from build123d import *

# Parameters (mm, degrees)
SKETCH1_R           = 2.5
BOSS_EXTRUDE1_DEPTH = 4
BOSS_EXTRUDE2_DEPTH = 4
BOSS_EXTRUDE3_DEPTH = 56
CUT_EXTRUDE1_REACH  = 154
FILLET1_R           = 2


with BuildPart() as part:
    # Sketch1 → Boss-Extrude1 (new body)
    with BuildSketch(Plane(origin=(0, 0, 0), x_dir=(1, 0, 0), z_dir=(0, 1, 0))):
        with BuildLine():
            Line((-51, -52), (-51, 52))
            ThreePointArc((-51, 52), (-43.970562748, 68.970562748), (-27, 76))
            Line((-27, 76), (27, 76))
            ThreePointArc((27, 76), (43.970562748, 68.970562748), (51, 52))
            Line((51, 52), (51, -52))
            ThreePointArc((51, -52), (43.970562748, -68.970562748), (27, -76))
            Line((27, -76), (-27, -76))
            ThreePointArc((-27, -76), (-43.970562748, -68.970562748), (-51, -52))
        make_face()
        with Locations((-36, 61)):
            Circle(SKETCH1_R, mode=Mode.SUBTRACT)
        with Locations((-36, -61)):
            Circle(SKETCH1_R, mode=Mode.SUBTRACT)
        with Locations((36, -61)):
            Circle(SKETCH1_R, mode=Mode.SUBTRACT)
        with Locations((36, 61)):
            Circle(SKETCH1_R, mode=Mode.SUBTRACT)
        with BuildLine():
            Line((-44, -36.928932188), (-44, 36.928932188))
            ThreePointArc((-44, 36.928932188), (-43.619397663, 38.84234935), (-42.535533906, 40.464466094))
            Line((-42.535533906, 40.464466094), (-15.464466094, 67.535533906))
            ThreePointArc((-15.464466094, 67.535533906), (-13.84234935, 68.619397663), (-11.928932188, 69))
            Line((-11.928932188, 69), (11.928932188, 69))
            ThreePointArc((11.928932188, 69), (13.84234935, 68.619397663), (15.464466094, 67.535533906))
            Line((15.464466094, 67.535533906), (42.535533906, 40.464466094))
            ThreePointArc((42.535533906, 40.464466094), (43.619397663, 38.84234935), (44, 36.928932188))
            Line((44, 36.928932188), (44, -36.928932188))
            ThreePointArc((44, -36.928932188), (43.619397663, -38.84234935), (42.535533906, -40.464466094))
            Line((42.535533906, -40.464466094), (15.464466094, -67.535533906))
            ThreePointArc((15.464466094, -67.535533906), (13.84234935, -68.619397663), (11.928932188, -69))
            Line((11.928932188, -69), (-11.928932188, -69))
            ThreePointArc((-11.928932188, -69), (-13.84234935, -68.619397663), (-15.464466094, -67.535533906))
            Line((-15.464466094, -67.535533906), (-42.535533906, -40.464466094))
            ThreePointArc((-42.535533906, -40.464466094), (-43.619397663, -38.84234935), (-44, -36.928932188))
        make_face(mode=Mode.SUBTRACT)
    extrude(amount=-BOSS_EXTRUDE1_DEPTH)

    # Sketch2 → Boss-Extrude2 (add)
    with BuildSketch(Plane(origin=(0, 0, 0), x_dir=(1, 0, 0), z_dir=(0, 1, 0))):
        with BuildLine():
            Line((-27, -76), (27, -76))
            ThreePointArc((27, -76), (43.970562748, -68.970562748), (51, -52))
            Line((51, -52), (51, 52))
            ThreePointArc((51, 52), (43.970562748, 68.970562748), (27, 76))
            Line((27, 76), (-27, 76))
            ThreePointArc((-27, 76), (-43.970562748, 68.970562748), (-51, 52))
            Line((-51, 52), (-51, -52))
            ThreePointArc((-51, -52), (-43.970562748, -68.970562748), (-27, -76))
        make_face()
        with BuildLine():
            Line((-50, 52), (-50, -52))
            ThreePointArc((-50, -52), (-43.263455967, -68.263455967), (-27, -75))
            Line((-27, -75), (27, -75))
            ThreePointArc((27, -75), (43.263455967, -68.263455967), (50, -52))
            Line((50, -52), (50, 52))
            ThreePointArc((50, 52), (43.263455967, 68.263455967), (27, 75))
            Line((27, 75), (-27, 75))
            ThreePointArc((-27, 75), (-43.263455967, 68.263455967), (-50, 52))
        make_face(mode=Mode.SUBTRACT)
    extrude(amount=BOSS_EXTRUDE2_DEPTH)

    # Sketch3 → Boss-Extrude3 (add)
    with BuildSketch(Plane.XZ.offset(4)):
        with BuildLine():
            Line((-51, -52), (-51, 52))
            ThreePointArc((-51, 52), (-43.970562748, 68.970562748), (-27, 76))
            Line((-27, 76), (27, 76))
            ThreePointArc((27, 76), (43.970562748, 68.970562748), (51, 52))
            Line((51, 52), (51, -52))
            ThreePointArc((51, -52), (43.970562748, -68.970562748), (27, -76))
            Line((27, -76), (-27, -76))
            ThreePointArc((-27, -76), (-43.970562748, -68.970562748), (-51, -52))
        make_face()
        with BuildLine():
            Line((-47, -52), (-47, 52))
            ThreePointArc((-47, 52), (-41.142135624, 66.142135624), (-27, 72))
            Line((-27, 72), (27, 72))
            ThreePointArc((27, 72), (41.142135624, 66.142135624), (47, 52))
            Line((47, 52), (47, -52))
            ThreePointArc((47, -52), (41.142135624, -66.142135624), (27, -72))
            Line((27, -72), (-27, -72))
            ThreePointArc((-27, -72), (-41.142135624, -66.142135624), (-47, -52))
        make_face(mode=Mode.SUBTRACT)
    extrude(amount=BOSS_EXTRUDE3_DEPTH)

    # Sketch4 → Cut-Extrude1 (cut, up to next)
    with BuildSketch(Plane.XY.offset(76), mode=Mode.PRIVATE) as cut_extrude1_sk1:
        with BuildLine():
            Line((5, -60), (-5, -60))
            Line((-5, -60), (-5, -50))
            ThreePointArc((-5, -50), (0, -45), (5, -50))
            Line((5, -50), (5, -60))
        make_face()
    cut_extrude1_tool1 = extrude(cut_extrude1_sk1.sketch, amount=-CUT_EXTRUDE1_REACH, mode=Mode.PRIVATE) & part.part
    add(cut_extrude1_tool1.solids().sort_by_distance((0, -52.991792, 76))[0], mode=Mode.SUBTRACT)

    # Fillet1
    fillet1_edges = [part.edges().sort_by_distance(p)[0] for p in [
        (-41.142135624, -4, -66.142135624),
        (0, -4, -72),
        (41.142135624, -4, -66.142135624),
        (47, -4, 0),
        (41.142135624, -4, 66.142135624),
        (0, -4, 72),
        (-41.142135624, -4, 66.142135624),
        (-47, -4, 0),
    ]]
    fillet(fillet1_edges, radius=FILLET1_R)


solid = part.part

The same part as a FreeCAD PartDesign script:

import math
import FreeCAD as App
import Part
import Sketcher
from FreeCAD import Vector
Q = App.Units.Quantity


def edges_at(feature, points):
    """Names of the edges that pass closest to the given points."""
    edges = feature.Shape.Edges
    near = lambda p: min(range(len(edges)), key=lambda i: edges[i].distToShape(Part.Vertex(*p))[0])
    return sorted({f"Edge{near(p) + 1}" for p in points})

doc = App.newDocument("Part")
body = doc.addObject("PartDesign::Body", "Body")

# Sketch on XZ plane
sketch1 = body.newObject("Sketcher::SketchObject", "Sketch")
sketch1.AttachmentSupport = (doc.getObject("XZ_Plane"), [""])
sketch1.MapMode = "FlatFace"
sketch1.addGeometry(Part.LineSegment(Vector(-51, -52, 0), Vector(-51, 52, 0)), False)
sketch1.addGeometry(Part.ArcOfCircle(Part.Circle(Vector(-27, 52, 0), Vector(0, 0, 1), 24), math.radians(90), math.radians(180)), False)
sketch1.addGeometry(Part.LineSegment(Vector(-27, 76, 0), Vector(27, 76, 0)), False)
sketch1.addGeometry(Part.ArcOfCircle(Part.Circle(Vector(27, 52, 0), Vector(0, 0, 1), 24), math.radians(0), math.radians(90)), False)
sketch1.addGeometry(Part.LineSegment(Vector(51, 52, 0), Vector(51, -52, 0)), False)
sketch1.addGeometry(Part.ArcOfCircle(Part.Circle(Vector(27, -52, 0), Vector(0, 0, 1), 24), math.radians(-90), math.radians(0)), False)
sketch1.addGeometry(Part.LineSegment(Vector(27, -76, 0), Vector(-27, -76, 0)), False)
sketch1.addGeometry(Part.ArcOfCircle(Part.Circle(Vector(-27, -52, 0), Vector(0, 0, 1), 24), math.radians(-180), math.radians(-90)), False)
sketch1.addGeometry(Part.Circle(Vector(36, 61, 0), Vector(0, 0, 1), 2.5), False)
sketch1.addGeometry(Part.Circle(Vector(-36, 61, 0), Vector(0, 0, 1), 2.5), False)
sketch1.addGeometry(Part.Circle(Vector(36, -61, 0), Vector(0, 0, 1), 2.5), False)
sketch1.addGeometry(Part.LineSegment(Vector(-44, 36.928932, 0), Vector(-44, -36.928932, 0)), False)
sketch1.addGeometry(Part.ArcOfCircle(Part.Circle(Vector(-39, -36.928932, 0), Vector(0, 0, 1), 5), math.radians(180), math.radians(225)), False)
sketch1.addGeometry(Part.LineSegment(Vector(-42.535534, -40.464466, 0), Vector(-15.464466, -67.535534, 0)), False)
sketch1.addGeometry(Part.ArcOfCircle(Part.Circle(Vector(-11.928932, -64, 0), Vector(0, 0, 1), 5), math.radians(-135), math.radians(-90)), False)
sketch1.addGeometry(Part.LineSegment(Vector(-11.928932, -69, 0), Vector(11.928932, -69, 0)), False)
sketch1.addGeometry(Part.ArcOfCircle(Part.Circle(Vector(11.928932, -64, 0), Vector(0, 0, 1), 5), math.radians(-90), math.radians(-45)), False)
sketch1.addGeometry(Part.LineSegment(Vector(15.464466, -67.535534, 0), Vector(42.535534, -40.464466, 0)), False)
sketch1.addGeometry(Part.ArcOfCircle(Part.Circle(Vector(39, -36.928932, 0), Vector(0, 0, 1), 5), math.radians(-45), math.radians(0)), False)
sketch1.addGeometry(Part.LineSegment(Vector(44, -36.928932, 0), Vector(44, 36.928932, 0)), False)
sketch1.addGeometry(Part.ArcOfCircle(Part.Circle(Vector(39, 36.928932, 0), Vector(0, 0, 1), 5), math.radians(0), math.radians(45)), False)
sketch1.addGeometry(Part.LineSegment(Vector(42.535534, 40.464466, 0), Vector(15.464466, 67.535534, 0)), False)
sketch1.addGeometry(Part.ArcOfCircle(Part.Circle(Vector(11.928932, 64, 0), Vector(0, 0, 1), 5), math.radians(45), math.radians(90)), False)
sketch1.addGeometry(Part.LineSegment(Vector(11.928932, 69, 0), Vector(-11.928932, 69, 0)), False)
sketch1.addGeometry(Part.ArcOfCircle(Part.Circle(Vector(-11.928932, 64, 0), Vector(0, 0, 1), 5), math.radians(90), math.radians(135)), False)
sketch1.addGeometry(Part.LineSegment(Vector(-15.464466, 67.535534, 0), Vector(-42.535534, 40.464466, 0)), False)
sketch1.addGeometry(Part.ArcOfCircle(Part.Circle(Vector(-39, 36.928932, 0), Vector(0, 0, 1), 5), math.radians(135), math.radians(180)), False)
sketch1.addGeometry(Part.Circle(Vector(-36, -61, 0), Vector(0, 0, 1), 2.5), False)
sketch1.addConstraint(Sketcher.Constraint("Tangent", 0, 2, 1, 2))
sketch1.addConstraint(Sketcher.Constraint("Tangent", 1, 1, 2, 1))
sketch1.addConstraint(Sketcher.Constraint("Tangent", 2, 2, 3, 2))
sketch1.addConstraint(Sketcher.Constraint("Tangent", 3, 1, 4, 1))
sketch1.addConstraint(Sketcher.Constraint("Tangent", 4, 2, 5, 2))
sketch1.addConstraint(Sketcher.Constraint("Tangent", 5, 1, 6, 1))
sketch1.addConstraint(Sketcher.Constraint("Tangent", 6, 2, 7, 2))
sketch1.addConstraint(Sketcher.Constraint("Tangent", 7, 1, 0, 1))
sketch1.addConstraint(Sketcher.Constraint("Tangent", 11, 2, 12, 1))
sketch1.addConstraint(Sketcher.Constraint("Tangent", 12, 2, 13, 1))
sketch1.addConstraint(Sketcher.Constraint("Tangent", 13, 2, 14, 1))
sketch1.addConstraint(Sketcher.Constraint("Tangent", 14, 2, 15, 1))
sketch1.addConstraint(Sketcher.Constraint("Tangent", 15, 2, 16, 1))
sketch1.addConstraint(Sketcher.Constraint("Tangent", 16, 2, 17, 1))
sketch1.addConstraint(Sketcher.Constraint("Tangent", 17, 2, 18, 1))
sketch1.addConstraint(Sketcher.Constraint("Tangent", 18, 2, 19, 1))
sketch1.addConstraint(Sketcher.Constraint("Tangent", 19, 2, 20, 1))
sketch1.addConstraint(Sketcher.Constraint("Tangent", 20, 2, 21, 1))
sketch1.addConstraint(Sketcher.Constraint("Tangent", 21, 2, 22, 1))
sketch1.addConstraint(Sketcher.Constraint("Tangent", 22, 2, 23, 1))
sketch1.addConstraint(Sketcher.Constraint("Tangent", 23, 2, 24, 1))
sketch1.addConstraint(Sketcher.Constraint("Tangent", 24, 2, 25, 1))
sketch1.addConstraint(Sketcher.Constraint("Tangent", 25, 2, 26, 1))
sketch1.addConstraint(Sketcher.Constraint("Tangent", 26, 2, 11, 1))
sketch1.addConstraint(Sketcher.Constraint("Vertical", 0))
sketch1.addConstraint(Sketcher.Constraint("Horizontal", 2))
sketch1.addConstraint(Sketcher.Constraint("Vertical", 4))
sketch1.addConstraint(Sketcher.Constraint("Horizontal", 6))
sketch1.addConstraint(Sketcher.Constraint("Vertical", 11))
sketch1.addConstraint(Sketcher.Constraint("Horizontal", 15))
sketch1.addConstraint(Sketcher.Constraint("Vertical", 19))
sketch1.addConstraint(Sketcher.Constraint("Horizontal", 23))
sketch1.addConstraint(Sketcher.Constraint("Equal", 1, 3))
sketch1.addConstraint(Sketcher.Constraint("Equal", 3, 5))
sketch1.addConstraint(Sketcher.Constraint("Equal", 5, 7))
sketch1.addConstraint(Sketcher.Constraint("Equal", 8, 9))
sketch1.addConstraint(Sketcher.Constraint("Equal", 9, 10))
sketch1.addConstraint(Sketcher.Constraint("Equal", 12, 14))
sketch1.addConstraint(Sketcher.Constraint("Equal", 14, 16))
sketch1.addConstraint(Sketcher.Constraint("Equal", 16, 18))
sketch1.addConstraint(Sketcher.Constraint("Equal", 18, 20))
sketch1.addConstraint(Sketcher.Constraint("Equal", 20, 22))
sketch1.addConstraint(Sketcher.Constraint("Equal", 22, 24))
sketch1.addConstraint(Sketcher.Constraint("Equal", 24, 26))
sketch1.addConstraint(Sketcher.Constraint("Equal", 10, 27))
sketch1.addConstraint(Sketcher.Constraint("Symmetric", 1, 3, 5, 3, -1, 1))
sketch1.addConstraint(Sketcher.Constraint("Symmetric", 9, 3, 10, 3, -1, 1))
sketch1.addConstraint(Sketcher.Constraint("Symmetric", 12, 3, 20, 3, -1, 1))
sketch1.addConstraint(Sketcher.Constraint("Symmetric", 14, 3, 22, 3, -1, 1))
sketch1.addConstraint(Sketcher.Constraint("Symmetric", 8, 3, 27, 3, -1, 1))
sketch1.addConstraint(Sketcher.Constraint("Symmetric", 16, 2, 24, 2, -1, 1))
sketch1.addConstraint(Sketcher.Constraint("Symmetric", 8, 3, 9, 3, -2))
sketch1.addConstraint(Sketcher.Constraint("Symmetric", 13, 2, 16, 2, -2))
sketch1.addConstraint(Sketcher.Constraint("Perpendicular", 13, 17))
sketch1.addConstraint(Sketcher.Constraint("Diameter", 8, Q("5 mm")))
sketch1.addConstraint(Sketcher.Constraint("Radius", 1, Q("24 mm")))
sketch1.addConstraint(Sketcher.Constraint("Radius", 12, Q("5 mm")))
sketch1.addConstraint(Sketcher.Constraint("DistanceX", 2, 1, 2, 2, Q("54 mm")))
sketch1.addConstraint(Sketcher.Constraint("DistanceY", 0, 1, 0, 2, Q("104 mm")))
sketch1.addConstraint(Sketcher.Constraint("DistanceX", -1, 1, 8, 3, Q("36 mm")))
sketch1.addConstraint(Sketcher.Constraint("DistanceY", -1, 1, 8, 3, Q("61 mm")))
sketch1.addConstraint(Sketcher.Constraint("DistanceX", 12, 3, -1, 1, Q("39 mm")))
sketch1.addConstraint(Sketcher.Constraint("DistanceY", 14, 3, -1, 1, Q("64 mm")))
sketch1.addConstraint(Sketcher.Constraint("DistanceX", 13, 2, 16, 3, Q("27.393398 mm")))
pad1 = body.newObject("PartDesign::Pad", "Pad")
pad1.Profile = sketch1
pad1.Length = 4

# Sketch on XZ plane
sketch2 = body.newObject("Sketcher::SketchObject", "Sketch001")
sketch2.AttachmentSupport = (doc.getObject("XZ_Plane"), [""])
sketch2.MapMode = "FlatFace"
sketch2.addGeometry(Part.LineSegment(Vector(-27, 76, 0), Vector(27, 76, 0)), False)
sketch2.addGeometry(Part.ArcOfCircle(Part.Circle(Vector(27, 52, 0), Vector(0, 0, 1), 24), math.radians(0), math.radians(90)), False)
sketch2.addGeometry(Part.LineSegment(Vector(51, 52, 0), Vector(51, -52, 0)), False)
sketch2.addGeometry(Part.ArcOfCircle(Part.Circle(Vector(27, -52, 0), Vector(0, 0, 1), 24), math.radians(-90), math.radians(0)), False)
sketch2.addGeometry(Part.LineSegment(Vector(27, -76, 0), Vector(-27, -76, 0)), False)
sketch2.addGeometry(Part.ArcOfCircle(Part.Circle(Vector(-27, -52, 0), Vector(0, 0, 1), 24), math.radians(-180), math.radians(-90)), False)
sketch2.addGeometry(Part.LineSegment(Vector(-51, -52, 0), Vector(-51, 52, 0)), False)
sketch2.addGeometry(Part.ArcOfCircle(Part.Circle(Vector(-27, 52, 0), Vector(0, 0, 1), 24), math.radians(90), math.radians(180)), False)
sketch2.addGeometry(Part.LineSegment(Vector(-50, 52, 0), Vector(-50, -52, 0)), False)
sketch2.addGeometry(Part.ArcOfCircle(Part.Circle(Vector(-27, -52, 0), Vector(0, 0, 1), 23), math.radians(-180), math.radians(-90)), False)
sketch2.addGeometry(Part.LineSegment(Vector(-27, -75, 0), Vector(27, -75, 0)), False)
sketch2.addGeometry(Part.ArcOfCircle(Part.Circle(Vector(27, -52, 0), Vector(0, 0, 1), 23), math.radians(-90), math.radians(0)), False)
sketch2.addGeometry(Part.LineSegment(Vector(50, -52, 0), Vector(50, 52, 0)), False)
sketch2.addGeometry(Part.ArcOfCircle(Part.Circle(Vector(27, 52, 0), Vector(0, 0, 1), 23), math.radians(0), math.radians(90)), False)
sketch2.addGeometry(Part.LineSegment(Vector(27, 75, 0), Vector(-27, 75, 0)), False)
sketch2.addGeometry(Part.ArcOfCircle(Part.Circle(Vector(-27, 52, 0), Vector(0, 0, 1), 23), math.radians(90), math.radians(180)), False)
sketch2.addConstraint(Sketcher.Constraint("Tangent", 0, 2, 1, 2))
sketch2.addConstraint(Sketcher.Constraint("Tangent", 1, 1, 2, 1))
sketch2.addConstraint(Sketcher.Constraint("Tangent", 2, 2, 3, 2))
sketch2.addConstraint(Sketcher.Constraint("Tangent", 3, 1, 4, 1))
sketch2.addConstraint(Sketcher.Constraint("Tangent", 4, 2, 5, 2))
sketch2.addConstraint(Sketcher.Constraint("Tangent", 5, 1, 6, 1))
sketch2.addConstraint(Sketcher.Constraint("Tangent", 6, 2, 7, 2))
sketch2.addConstraint(Sketcher.Constraint("Tangent", 7, 1, 0, 1))
sketch2.addConstraint(Sketcher.Constraint("Tangent", 8, 2, 9, 1))
sketch2.addConstraint(Sketcher.Constraint("Tangent", 9, 2, 10, 1))
sketch2.addConstraint(Sketcher.Constraint("Tangent", 10, 2, 11, 1))
sketch2.addConstraint(Sketcher.Constraint("Tangent", 11, 2, 12, 1))
sketch2.addConstraint(Sketcher.Constraint("Tangent", 12, 2, 13, 1))
sketch2.addConstraint(Sketcher.Constraint("Tangent", 13, 2, 14, 1))
sketch2.addConstraint(Sketcher.Constraint("Tangent", 14, 2, 15, 1))
sketch2.addConstraint(Sketcher.Constraint("Tangent", 15, 2, 8, 1))
sketch2.addConstraint(Sketcher.Constraint("Horizontal", 0))
sketch2.addConstraint(Sketcher.Constraint("Vertical", 2))
sketch2.addConstraint(Sketcher.Constraint("Horizontal", 4))
sketch2.addConstraint(Sketcher.Constraint("Vertical", 6))
sketch2.addConstraint(Sketcher.Constraint("Vertical", 8))
sketch2.addConstraint(Sketcher.Constraint("Horizontal", 10))
sketch2.addConstraint(Sketcher.Constraint("Vertical", 12))
sketch2.addConstraint(Sketcher.Constraint("Horizontal", 14))
sketch2.addConstraint(Sketcher.Constraint("Coincident", 9, 3, 5, 3))
sketch2.addConstraint(Sketcher.Constraint("Coincident", 11, 3, 3, 3))
sketch2.addConstraint(Sketcher.Constraint("Coincident", 13, 3, 1, 3))
sketch2.addConstraint(Sketcher.Constraint("Equal", 1, 3))
sketch2.addConstraint(Sketcher.Constraint("Equal", 3, 5))
sketch2.addConstraint(Sketcher.Constraint("Equal", 5, 7))
sketch2.addConstraint(Sketcher.Constraint("Equal", 13, 15))
sketch2.addConstraint(Sketcher.Constraint("Symmetric", 1, 3, 5, 3, -1, 1))
sketch2.addConstraint(Sketcher.Constraint("Radius", 1, Q("24 mm")))
sketch2.addConstraint(Sketcher.Constraint("Radius", 9, Q("23 mm")))
sketch2.addConstraint(Sketcher.Constraint("DistanceX", 0, 1, 0, 2, Q("54 mm")))
sketch2.addConstraint(Sketcher.Constraint("DistanceY", 2, 2, 2, 1, Q("104 mm")))
pad2 = body.newObject("PartDesign::Pad", "Pad001")
pad2.Profile = sketch2
pad2.Length = 4
pad2.Reversed = True

# Sketch on XZ plane
sketch3 = body.newObject("Sketcher::SketchObject", "Sketch002")
sketch3.AttachmentSupport = (doc.getObject("XZ_Plane"), [""])
sketch3.MapMode = "FlatFace"
sketch3.AttachmentOffset = App.Placement(Vector(0, 0, 4), App.Rotation())
sketch3.addGeometry(Part.LineSegment(Vector(-51, 52, 0), Vector(-51, -52, 0)), False)
sketch3.addGeometry(Part.ArcOfCircle(Part.Circle(Vector(-27, -52, 0), Vector(0, 0, 1), 24), math.radians(-180), math.radians(-90)), False)
sketch3.addGeometry(Part.LineSegment(Vector(-27, -76, 0), Vector(27, -76, 0)), False)
sketch3.addGeometry(Part.ArcOfCircle(Part.Circle(Vector(27, -52, 0), Vector(0, 0, 1), 24), math.radians(-90), math.radians(0)), False)
sketch3.addGeometry(Part.LineSegment(Vector(51, -52, 0), Vector(51, 52, 0)), False)
sketch3.addGeometry(Part.ArcOfCircle(Part.Circle(Vector(27, 52, 0), Vector(0, 0, 1), 24), math.radians(0), math.radians(90)), False)
sketch3.addGeometry(Part.LineSegment(Vector(27, 76, 0), Vector(-27, 76, 0)), False)
sketch3.addGeometry(Part.ArcOfCircle(Part.Circle(Vector(-27, 52, 0), Vector(0, 0, 1), 24), math.radians(90), math.radians(180)), False)
sketch3.addGeometry(Part.LineSegment(Vector(-47, -52, 0), Vector(-47, 52, 0)), False)
sketch3.addGeometry(Part.ArcOfCircle(Part.Circle(Vector(-27, 52, 0), Vector(0, 0, 1), 20), math.radians(90), math.radians(180)), False)
sketch3.addGeometry(Part.LineSegment(Vector(-27, 72, 0), Vector(27, 72, 0)), False)
sketch3.addGeometry(Part.ArcOfCircle(Part.Circle(Vector(27, 52, 0), Vector(0, 0, 1), 20), math.radians(0), math.radians(90)), False)
sketch3.addGeometry(Part.LineSegment(Vector(47, 52, 0), Vector(47, -52, 0)), False)
sketch3.addGeometry(Part.ArcOfCircle(Part.Circle(Vector(27, -52, 0), Vector(0, 0, 1), 20), math.radians(-90), math.radians(0)), False)
sketch3.addGeometry(Part.LineSegment(Vector(27, -72, 0), Vector(-27, -72, 0)), False)
sketch3.addGeometry(Part.ArcOfCircle(Part.Circle(Vector(-27, -52, 0), Vector(0, 0, 1), 20), math.radians(180), math.radians(270)), False)
sketch3.addConstraint(Sketcher.Constraint("Tangent", 0, 2, 1, 1))
sketch3.addConstraint(Sketcher.Constraint("Tangent", 1, 2, 2, 1))
sketch3.addConstraint(Sketcher.Constraint("Tangent", 2, 2, 3, 1))
sketch3.addConstraint(Sketcher.Constraint("Tangent", 3, 2, 4, 1))
sketch3.addConstraint(Sketcher.Constraint("Tangent", 4, 2, 5, 1))
sketch3.addConstraint(Sketcher.Constraint("Tangent", 5, 2, 6, 1))
sketch3.addConstraint(Sketcher.Constraint("Tangent", 6, 2, 7, 1))
sketch3.addConstraint(Sketcher.Constraint("Tangent", 7, 2, 0, 1))
sketch3.addConstraint(Sketcher.Constraint("Tangent", 8, 2, 9, 2))
sketch3.addConstraint(Sketcher.Constraint("Tangent", 9, 1, 10, 1))
sketch3.addConstraint(Sketcher.Constraint("Tangent", 10, 2, 11, 2))
sketch3.addConstraint(Sketcher.Constraint("Tangent", 11, 1, 12, 1))
sketch3.addConstraint(Sketcher.Constraint("Tangent", 12, 2, 13, 2))
sketch3.addConstraint(Sketcher.Constraint("Tangent", 13, 1, 14, 1))
sketch3.addConstraint(Sketcher.Constraint("Tangent", 14, 2, 15, 2))
sketch3.addConstraint(Sketcher.Constraint("Tangent", 15, 1, 8, 1))
sketch3.addConstraint(Sketcher.Constraint("Vertical", 0))
sketch3.addConstraint(Sketcher.Constraint("Horizontal", 2))
sketch3.addConstraint(Sketcher.Constraint("Vertical", 4))
sketch3.addConstraint(Sketcher.Constraint("Horizontal", 6))
sketch3.addConstraint(Sketcher.Constraint("Vertical", 8))
sketch3.addConstraint(Sketcher.Constraint("Horizontal", 10))
sketch3.addConstraint(Sketcher.Constraint("Vertical", 12))
sketch3.addConstraint(Sketcher.Constraint("Horizontal", 14))
sketch3.addConstraint(Sketcher.Constraint("Coincident", 9, 3, 7, 3))
sketch3.addConstraint(Sketcher.Constraint("Coincident", 11, 3, 5, 3))
sketch3.addConstraint(Sketcher.Constraint("Coincident", 13, 3, 3, 3))
sketch3.addConstraint(Sketcher.Constraint("Equal", 1, 3))
sketch3.addConstraint(Sketcher.Constraint("Equal", 3, 5))
sketch3.addConstraint(Sketcher.Constraint("Equal", 5, 7))
sketch3.addConstraint(Sketcher.Constraint("Equal", 13, 15))
sketch3.addConstraint(Sketcher.Constraint("Symmetric", 1, 3, 5, 3, -1, 1))
sketch3.addConstraint(Sketcher.Constraint("Radius", 1, Q("24 mm")))
sketch3.addConstraint(Sketcher.Constraint("Radius", 9, Q("20 mm")))
sketch3.addConstraint(Sketcher.Constraint("DistanceX", 2, 1, 2, 2, Q("54 mm")))
sketch3.addConstraint(Sketcher.Constraint("DistanceY", 0, 2, 0, 1, Q("104 mm")))
pad3 = body.newObject("PartDesign::Pad", "Pad002")
pad3.Profile = sketch3
pad3.Length = 56

# Sketch on XY plane
sketch4 = body.newObject("Sketcher::SketchObject", "Sketch003")
sketch4.AttachmentSupport = (doc.getObject("XY_Plane"), [""])
sketch4.MapMode = "FlatFace"
sketch4.AttachmentOffset = App.Placement(Vector(0, 0, 76), App.Rotation())
sketch4.addGeometry(Part.LineSegment(Vector(-5, -60, 0), Vector(5, -60, 0)), False)
sketch4.addGeometry(Part.LineSegment(Vector(5, -60, 0), Vector(5, -50, 0)), False)
sketch4.addGeometry(Part.ArcOfCircle(Part.Circle(Vector(0, -50, 0), Vector(0, 0, 1), 5), math.radians(0), math.radians(180)), False)
sketch4.addGeometry(Part.LineSegment(Vector(-5, -50, 0), Vector(-5, -60, 0)), False)
sketch4.addConstraint(Sketcher.Constraint("Coincident", 0, 2, 1, 1))
sketch4.addConstraint(Sketcher.Constraint("Tangent", 1, 2, 2, 1))
sketch4.addConstraint(Sketcher.Constraint("Tangent", 2, 2, 3, 1))
sketch4.addConstraint(Sketcher.Constraint("Coincident", 3, 2, 0, 1))
sketch4.addConstraint(Sketcher.Constraint("Horizontal", 0))
sketch4.addConstraint(Sketcher.Constraint("Vertical", 1))
sketch4.addConstraint(Sketcher.Constraint("Vertical", 3))
sketch4.addConstraint(Sketcher.Constraint("PointOnObject", 2, 3, -2))
sketch4.addConstraint(Sketcher.Constraint("Equal", 0, 1))
sketch4.addConstraint(Sketcher.Constraint("Radius", 2, Q("5 mm")))
sketch4.addConstraint(Sketcher.Constraint("DistanceY", 2, 3, -1, 1, Q("50 mm")))
pocket1 = body.newObject("PartDesign::Pocket", "Pocket")
pocket1.Profile = sketch4
pocket1.Type = "UpToFirst"
doc.recompute()

fillet = body.newObject("PartDesign::Fillet", "Fillet")
fillet.Base = (pocket1, edges_at(pocket1, [
    (-41.142, -4, -66.142),
    (0, -4, -72),
    (41.142, -4, -66.142),
    (47, -4, 0),
    (41.142, -4, 66.142),
    (0, -4, 72),
    (-41.142, -4, 66.142),
    (-47, -4, 0),
]))
fillet.Radius = 2

doc.recompute()
